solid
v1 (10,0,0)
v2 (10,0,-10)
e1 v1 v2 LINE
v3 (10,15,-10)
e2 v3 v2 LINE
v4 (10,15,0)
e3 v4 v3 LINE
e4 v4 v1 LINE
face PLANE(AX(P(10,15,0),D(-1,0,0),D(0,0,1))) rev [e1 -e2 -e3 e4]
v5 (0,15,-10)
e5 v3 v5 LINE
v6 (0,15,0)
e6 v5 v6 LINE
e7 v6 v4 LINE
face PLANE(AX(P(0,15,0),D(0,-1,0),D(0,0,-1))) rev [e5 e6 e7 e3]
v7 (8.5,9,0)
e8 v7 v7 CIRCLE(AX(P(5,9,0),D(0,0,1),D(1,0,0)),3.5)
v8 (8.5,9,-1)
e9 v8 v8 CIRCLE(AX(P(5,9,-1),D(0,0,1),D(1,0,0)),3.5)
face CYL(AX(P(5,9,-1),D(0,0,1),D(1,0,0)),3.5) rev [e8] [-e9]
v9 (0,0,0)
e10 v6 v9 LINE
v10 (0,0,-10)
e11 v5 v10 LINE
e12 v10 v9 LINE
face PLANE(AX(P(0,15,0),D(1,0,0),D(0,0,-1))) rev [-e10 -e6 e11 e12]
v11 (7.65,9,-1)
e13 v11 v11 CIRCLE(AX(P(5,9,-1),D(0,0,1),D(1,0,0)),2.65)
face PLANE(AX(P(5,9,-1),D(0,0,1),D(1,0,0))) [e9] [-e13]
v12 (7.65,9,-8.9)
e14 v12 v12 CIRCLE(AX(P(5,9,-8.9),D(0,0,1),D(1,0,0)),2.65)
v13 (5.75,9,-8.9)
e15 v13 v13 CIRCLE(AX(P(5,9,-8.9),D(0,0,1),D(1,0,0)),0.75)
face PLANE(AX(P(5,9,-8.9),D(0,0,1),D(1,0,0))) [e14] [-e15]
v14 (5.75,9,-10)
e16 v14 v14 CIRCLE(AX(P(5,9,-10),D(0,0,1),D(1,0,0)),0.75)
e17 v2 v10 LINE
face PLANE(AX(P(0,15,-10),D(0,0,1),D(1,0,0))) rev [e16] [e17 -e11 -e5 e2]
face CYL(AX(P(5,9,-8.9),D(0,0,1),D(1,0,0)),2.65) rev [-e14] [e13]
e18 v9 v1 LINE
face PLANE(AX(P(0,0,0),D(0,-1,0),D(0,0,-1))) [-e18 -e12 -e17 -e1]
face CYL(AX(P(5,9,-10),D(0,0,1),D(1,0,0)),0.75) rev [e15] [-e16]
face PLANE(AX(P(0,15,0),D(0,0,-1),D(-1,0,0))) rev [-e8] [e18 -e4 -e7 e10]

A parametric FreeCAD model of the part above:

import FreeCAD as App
import Part
import Sketcher
from FreeCAD import Vector

doc = App.newDocument("Part")
body = doc.addObject("PartDesign::Body", "Body")

# Sketch on XZ plane
sketch1 = body.newObject("Sketcher::SketchObject", "Sketch")
sketch1.AttachmentSupport = (doc.getObject("XZ_Plane"), [""])
sketch1.MapMode = "FlatFace"
sketch1.addGeometry([
    Part.LineSegment(Vector(0, -10, 0), Vector(0, 0, 0)),
    Part.LineSegment(Vector(0, 0, 0), Vector(10, 0, 0)),
    Part.LineSegment(Vector(10, 0, 0), Vector(10, -10, 0)),
    Part.LineSegment(Vector(10, -10, 0), Vector(0, -10, 0)),
], False)
sketch1.addConstraint([
    Sketcher.Constraint("Coincident", 0, 2, 1, 1),
    Sketcher.Constraint("Coincident", 1, 2, 2, 1),
    Sketcher.Constraint("Coincident", 2, 2, 3, 1),
    Sketcher.Constraint("Coincident", 3, 2, 0, 1),
    Sketcher.Constraint("Vertical", 0),
    Sketcher.Constraint("Horizontal", 1),
    Sketcher.Constraint("Vertical", 2),
    Sketcher.Constraint("Horizontal", 3),
    Sketcher.Constraint("Coincident", 0, 2, -1, 1),
    Sketcher.Constraint("Equal", 3, 0),
    Sketcher.Constraint("DistanceX", 1, 1, 1, 2, 10.0),
])
pad1 = body.newObject("PartDesign::Pad", "Pad")
pad1.Profile = sketch1
pad1.Length = 15
pad1.Reversed = True

# Sketch on XY plane
sketch2 = body.newObject("Sketcher::SketchObject", "Sketch001")
sketch2.AttachmentSupport = (doc.getObject("XY_Plane"), [""])
sketch2.MapMode = "FlatFace"
sketch2.addGeometry(Part.Circle(Vector(5, 9, 0), Vector(0, 0, 1), 3.5), False)
sketch2.addConstraint([
    Sketcher.Constraint("Diameter", 0, 7.0),
    Sketcher.Constraint("DistanceX", -1, 1, 0, 3, 5.0),
    Sketcher.Constraint("DistanceY", -1, 1, 0, 3, 9.0),
])
pocket1 = body.newObject("PartDesign::Pocket", "Pocket")
pocket1.Profile = sketch2
pocket1.Length = 1

# Sketch on XY plane
sketch3 = body.newObject("Sketcher::SketchObject", "Sketch002")
sketch3.AttachmentSupport = (doc.getObject("XY_Plane"), [""])
sketch3.MapMode = "FlatFace"
sketch3.AttachmentOffset = App.Placement(Vector(0, 0, -1), App.Rotation())
sketch3.addGeometry(Part.Circle(Vector(5, 9, 0), Vector(0, 0, 1), 2.6), False)
sketch3.addConstraint([
    Sketcher.Constraint("Diameter", 0, 5.3),
    Sketcher.Constraint("DistanceX", -1, 1, 0, 3, 5.0),
    Sketcher.Constraint("DistanceY", -1, 1, 0, 3, 9.0),
])
pocket2 = body.newObject("PartDesign::Pocket", "Pocket001")
pocket2.Profile = sketch3
pocket2.Length = 7.9

# Sketch on XY plane
sketch4 = body.newObject("Sketcher::SketchObject", "Sketch003")
sketch4.AttachmentSupport = (doc.getObject("XY_Plane"), [""])
sketch4.MapMode = "FlatFace"
sketch4.AttachmentOffset = App.Placement(Vector(0, 0, -8.9), App.Rotation())
sketch4.addGeometry(Part.Circle(Vector(5, 9, 0), Vector(0, 0, 1), 0.8), False)
sketch4.addConstraint([
    Sketcher.Constraint("Diameter", 0, 1.5),
    Sketcher.Constraint("DistanceX", -1, 1, 0, 3, 5.0),
    Sketcher.Constraint("DistanceY", -1, 1, 0, 3, 9.0),
])
pocket3 = body.newObject("PartDesign::Pocket", "Pocket002")
pocket3.Profile = sketch4
pocket3.Type = "ThroughAll"

doc.recompute()
